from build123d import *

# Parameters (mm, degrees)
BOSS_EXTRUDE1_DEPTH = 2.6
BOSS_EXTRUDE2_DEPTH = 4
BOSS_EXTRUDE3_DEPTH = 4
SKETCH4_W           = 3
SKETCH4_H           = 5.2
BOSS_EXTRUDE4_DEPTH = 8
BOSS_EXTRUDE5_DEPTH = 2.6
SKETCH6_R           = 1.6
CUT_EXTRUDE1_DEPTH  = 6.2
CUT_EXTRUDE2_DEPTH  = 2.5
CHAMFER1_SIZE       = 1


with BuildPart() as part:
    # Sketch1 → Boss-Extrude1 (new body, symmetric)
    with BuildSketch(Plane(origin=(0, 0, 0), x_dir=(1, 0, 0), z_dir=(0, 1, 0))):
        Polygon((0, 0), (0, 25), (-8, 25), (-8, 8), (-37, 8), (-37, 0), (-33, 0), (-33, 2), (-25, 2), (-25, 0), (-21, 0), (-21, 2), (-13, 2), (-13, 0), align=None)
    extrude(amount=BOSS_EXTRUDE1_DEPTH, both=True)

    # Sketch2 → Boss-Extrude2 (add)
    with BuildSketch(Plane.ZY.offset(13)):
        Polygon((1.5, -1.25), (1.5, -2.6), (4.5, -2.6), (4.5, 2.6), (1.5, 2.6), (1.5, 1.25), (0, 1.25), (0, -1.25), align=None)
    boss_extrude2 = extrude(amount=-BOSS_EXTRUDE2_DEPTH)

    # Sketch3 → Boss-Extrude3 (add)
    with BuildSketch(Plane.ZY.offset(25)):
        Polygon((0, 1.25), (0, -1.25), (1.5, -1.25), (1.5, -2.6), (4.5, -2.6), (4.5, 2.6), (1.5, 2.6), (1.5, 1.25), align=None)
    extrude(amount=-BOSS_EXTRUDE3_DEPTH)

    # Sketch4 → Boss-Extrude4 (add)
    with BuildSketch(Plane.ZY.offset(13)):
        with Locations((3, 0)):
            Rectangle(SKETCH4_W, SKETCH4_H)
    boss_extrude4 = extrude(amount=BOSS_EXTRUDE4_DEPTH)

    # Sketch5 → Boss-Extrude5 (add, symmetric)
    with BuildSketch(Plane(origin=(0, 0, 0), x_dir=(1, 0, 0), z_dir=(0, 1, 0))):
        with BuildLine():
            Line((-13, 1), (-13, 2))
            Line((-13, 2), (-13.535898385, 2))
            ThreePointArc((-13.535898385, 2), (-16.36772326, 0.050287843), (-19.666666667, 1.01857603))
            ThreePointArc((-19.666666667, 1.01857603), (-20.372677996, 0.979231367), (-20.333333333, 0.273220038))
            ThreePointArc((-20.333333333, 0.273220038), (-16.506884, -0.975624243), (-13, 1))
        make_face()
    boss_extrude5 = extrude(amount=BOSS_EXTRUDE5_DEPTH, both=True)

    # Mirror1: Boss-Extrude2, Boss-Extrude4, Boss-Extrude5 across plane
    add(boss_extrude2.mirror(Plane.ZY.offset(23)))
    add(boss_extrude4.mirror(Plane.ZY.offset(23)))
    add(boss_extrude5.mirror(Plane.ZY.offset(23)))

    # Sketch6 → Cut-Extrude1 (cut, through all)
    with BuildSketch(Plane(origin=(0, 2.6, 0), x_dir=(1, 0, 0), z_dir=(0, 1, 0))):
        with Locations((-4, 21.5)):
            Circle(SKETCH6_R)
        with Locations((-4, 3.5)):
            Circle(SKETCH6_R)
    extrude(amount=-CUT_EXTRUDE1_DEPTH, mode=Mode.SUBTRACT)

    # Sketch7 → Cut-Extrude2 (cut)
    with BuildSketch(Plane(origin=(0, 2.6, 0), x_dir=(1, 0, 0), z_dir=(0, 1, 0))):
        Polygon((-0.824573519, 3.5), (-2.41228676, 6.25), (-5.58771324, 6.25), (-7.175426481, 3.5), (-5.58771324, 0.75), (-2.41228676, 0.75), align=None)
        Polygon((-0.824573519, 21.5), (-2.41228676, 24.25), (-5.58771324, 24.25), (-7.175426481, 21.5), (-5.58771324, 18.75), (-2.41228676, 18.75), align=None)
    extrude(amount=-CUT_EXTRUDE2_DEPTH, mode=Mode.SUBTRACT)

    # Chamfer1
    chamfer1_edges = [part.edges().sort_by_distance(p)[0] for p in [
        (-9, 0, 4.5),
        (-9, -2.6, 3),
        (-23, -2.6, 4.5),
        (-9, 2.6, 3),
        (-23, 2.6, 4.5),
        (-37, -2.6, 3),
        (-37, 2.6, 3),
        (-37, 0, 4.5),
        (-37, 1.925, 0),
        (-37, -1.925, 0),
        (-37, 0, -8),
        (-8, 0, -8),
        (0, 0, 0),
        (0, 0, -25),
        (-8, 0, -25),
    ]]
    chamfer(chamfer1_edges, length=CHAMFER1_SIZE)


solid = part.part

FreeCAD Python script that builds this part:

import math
import FreeCAD as App
import Part
import Sketcher

V = App.Vector
Q = App.Units.Quantity


def edges_at(feature, points):
    """Names of the edges that pass closest to the given points."""
    edges = feature.Shape.Edges
    near = lambda p: min(range(len(edges)), key=lambda i: edges[i].distToShape(Part.Vertex(*p))[0])
    return sorted({f"Edge{near(p) + 1}" for p in points})

doc = App.newDocument("Part")
body = doc.addObject("PartDesign::Body", "Body")

sketch1 = body.newObject("Sketcher::SketchObject", "Sketch")
sketch1.AttachmentSupport = (doc.getObject("XZ_Plane"), [""])
sketch1.MapMode = "FlatFace"
sketch1.addGeometry([
    Part.LineSegment(V(0, 0, 0), V(0, -25, 0)),
    Part.LineSegment(V(0, -25, 0), V(-8, -25, 0)),
    Part.LineSegment(V(-8, -25, 0), V(-8, -8, 0)),
    Part.LineSegment(V(-8, -8, 0), V(-37, -8, 0)),
    Part.LineSegment(V(-37, -8, 0), V(-37, 0, 0)),
    Part.LineSegment(V(-37, 0, 0), V(-33, 0, 0)),
    Part.LineSegment(V(-33, 0, 0), V(-33, -2, 0)),
    Part.LineSegment(V(-33, -2, 0), V(-25, -2, 0)),
    Part.LineSegment(V(-25, -2, 0), V(-25, 0, 0)),
    Part.LineSegment(V(-25, 0, 0), V(-21, 0, 0)),
    Part.LineSegment(V(-21, 0, 0), V(-21, -2, 0)),
    Part.LineSegment(V(-21, -2, 0), V(-13, -2, 0)),
    Part.LineSegment(V(-13, -2, 0), V(-13, 0, 0)),
    Part.LineSegment(V(-13, 0, 0), V(0, 0, 0)),
], False)
sketch1.addConstraint([
    Sketcher.Constraint("Coincident", 0, 2, 1, 1),
    Sketcher.Constraint("Coincident", 1, 2, 2, 1),
    Sketcher.Constraint("Coincident", 2, 2, 3, 1),
    Sketcher.Constraint("Coincident", 3, 2, 4, 1),
    Sketcher.Constraint("Coincident", 4, 2, 5, 1),
    Sketcher.Constraint("Coincident", 5, 2, 6, 1),
    Sketcher.Constraint("Coincident", 6, 2, 7, 1),
    Sketcher.Constraint("Coincident", 7, 2, 8, 1),
    Sketcher.Constraint("Coincident", 8, 2, 9, 1),
    Sketcher.Constraint("Coincident", 9, 2, 10, 1),
    Sketcher.Constraint("Coincident", 10, 2, 11, 1),
    Sketcher.Constraint("Coincident", 11, 2, 12, 1),
    Sketcher.Constraint("Coincident", 12, 2, 13, 1),
    Sketcher.Constraint("Coincident", 13, 2, 0, 1),
    Sketcher.Constraint("Vertical", 0),
    Sketcher.Constraint("Horizontal", 1),
    Sketcher.Constraint("Vertical", 2),
    Sketcher.Constraint("Horizontal", 3),
    Sketcher.Constraint("Vertical", 4),
    Sketcher.Constraint("Horizontal", 5),
    Sketcher.Constraint("Vertical", 6),
    Sketcher.Constraint("Horizontal", 7),
    Sketcher.Constraint("Vertical", 8),
    Sketcher.Constraint("Horizontal", 9),
    Sketcher.Constraint("Vertical", 10),
    Sketcher.Constraint("Horizontal", 11),
    Sketcher.Constraint("Vertical", 12),
    Sketcher.Constraint("Horizontal", 13),
    Sketcher.Constraint("Coincident", 13, 2, -1, 1),
    Sketcher.Constraint("PointOnObject", 4, 2, -1),
    Sketcher.Constraint("PointOnObject", 8, 2, -1),
    Sketcher.Constraint("Horizontal", 7, 2, 10, 2),
    Sketcher.Constraint("Equal", 1, 7),
    Sketcher.Constraint("Equal", 5, 9),
    Sketcher.Constraint("Equal", 7, 11),
    Sketcher.Constraint("Equal", 11, 4),
    Sketcher.Constraint("DistanceX", 1, 2, 1, 1, Q("8 mm")),
    Sketcher.Constraint("DistanceX", 3, 2, 3, 1, Q("29 mm")),
    Sketcher.Constraint("DistanceX", 5, 1, 5, 2, Q("4 mm")),
    Sketcher.Constraint("DistanceY", 0, 2, 0, 1, Q("25 mm")),
    Sketcher.Constraint("DistanceY", 6, 2, 6, 1, Q("2 mm")),
])
pad1 = body.newObject("PartDesign::Pad", "Pad")
pad1.Profile = sketch1
pad1.Length = 5.2
pad1.Midplane = True

sketch2 = body.newObject("Sketcher::SketchObject", "Sketch001")
sketch2.AttachmentSupport = (doc.getObject("YZ_Plane"), [""])
sketch2.MapMode = "FlatFace"
sketch2.AttachmentOffset = App.Placement(V(0, 0, -13), App.Rotation())
sketch2.addGeometry([
    Part.LineSegment(V(-1.25, 1.5, 0), V(-2.6, 1.5, 0)),
    Part.LineSegment(V(-2.6, 1.5, 0), V(-2.6, 4.5, 0)),
    Part.LineSegment(V(-2.6, 4.5, 0), V(2.6, 4.5, 0)),
    Part.LineSegment(V(2.6, 4.5, 0), V(2.6, 1.5, 0)),
    Part.LineSegment(V(2.6, 1.5, 0), V(1.25, 1.5, 0)),
    Part.LineSegment(V(1.25, 1.5, 0), V(1.25, 0, 0)),
    Part.LineSegment(V(1.25, 0, 0), V(-1.25, 0, 0)),
    Part.LineSegment(V(-1.25, 0, 0), V(-1.25, 1.5, 0)),
], False)
sketch2.addConstraint([
    Sketcher.Constraint("Coincident", 0, 2, 1, 1),
    Sketcher.Constraint("Coincident", 1, 2, 2, 1),
    Sketcher.Constraint("Coincident", 2, 2, 3, 1),
    Sketcher.Constraint("Coincident", 3, 2, 4, 1),
    Sketcher.Constraint("Coincident", 4, 2, 5, 1),
    Sketcher.Constraint("Coincident", 5, 2, 6, 1),
    Sketcher.Constraint("Coincident", 6, 2, 7, 1),
    Sketcher.Constraint("Coincident", 7, 2, 0, 1),
    Sketcher.Constraint("Horizontal", 0),
    Sketcher.Constraint("Vertical", 1),
    Sketcher.Constraint("Horizontal", 2),
    Sketcher.Constraint("Vertical", 3),
    Sketcher.Constraint("Horizontal", 4),
    Sketcher.Constraint("Vertical", 5),
    Sketcher.Constraint("Horizontal", 6),
    Sketcher.Constraint("Vertical", 7),
    Sketcher.Constraint("Symmetric", 5, 2, 6, 2, -1, 1),
    Sketcher.Constraint("Symmetric", 0, 2, 3, 2, -2),
    Sketcher.Constraint("DistanceY", 1, 1, 1, 2, Q("3 mm")),
    Sketcher.Constraint("DistanceX", 2, 1, 2, 2, Q("5.2 mm")),
    Sketcher.Constraint("DistanceX", 6, 2, 6, 1, Q("2.5 mm")),
    Sketcher.Constraint("DistanceY", 5, 2, 5, 1, Q("1.5 mm")),
])
pad2 = body.newObject("PartDesign::Pad", "Pad001")
pad2.Profile = sketch2
pad2.Length = 4

sketch3 = body.newObject("Sketcher::SketchObject", "Sketch002")
sketch3.AttachmentSupport = (doc.getObject("YZ_Plane"), [""])
sketch3.MapMode = "FlatFace"
sketch3.AttachmentOffset = App.Placement(V(0, 0, -25), App.Rotation())
sketch3.addGeometry([
    Part.LineSegment(V(1.25, 0, 0), V(-1.25, 0, 0)),
    Part.LineSegment(V(-1.25, 0, 0), V(-1.25, 1.5, 0)),
    Part.LineSegment(V(-1.25, 1.5, 0), V(-2.6, 1.5, 0)),
    Part.LineSegment(V(-2.6, 1.5, 0), V(-2.6, 4.5, 0)),
    Part.LineSegment(V(-2.6, 4.5, 0), V(2.6, 4.5, 0)),
    Part.LineSegment(V(2.6, 4.5, 0), V(2.6, 1.5, 0)),
    Part.LineSegment(V(2.6, 1.5, 0), V(1.25, 1.5, 0)),
    Part.LineSegment(V(1.25, 1.5, 0), V(1.25, 0, 0)),
], False)
sketch3.addConstraint([
    Sketcher.Constraint("Coincident", 0, 2, 1, 1),
    Sketcher.Constraint("Coincident", 1, 2, 2, 1),
    Sketcher.Constraint("Coincident", 2, 2, 3, 1),
    Sketcher.Constraint("Coincident", 3, 2, 4, 1),
    Sketcher.Constraint("Coincident", 4, 2, 5, 1),
    Sketcher.Constraint("Coincident", 5, 2, 6, 1),
    Sketcher.Constraint("Coincident", 6, 2, 7, 1),
    Sketcher.Constraint("Coincident", 7, 2, 0, 1),
    Sketcher.Constraint("Horizontal", 0),
    Sketcher.Constraint("Vertical", 1),
    Sketcher.Constraint("Horizontal", 2),
    Sketcher.Constraint("Vertical", 3),
    Sketcher.Constraint("Horizontal", 4),
    Sketcher.Constraint("Vertical", 5),
    Sketcher.Constraint("Horizontal", 6),
    Sketcher.Constraint("Vertical", 7),
    Sketcher.Constraint("Symmetric", 0, 2, 7, 2, -1, 1),
    Sketcher.Constraint("Symmetric", 2, 2, 5, 2, -2),
    Sketcher.Constraint("DistanceY", 3, 1, 3, 2, Q("3 mm")),
    Sketcher.Constraint("DistanceX", 0, 2, 0, 1, Q("2.5 mm")),
    Sketcher.Constraint("DistanceX", 4, 1, 4, 2, Q("5.2 mm")),
    Sketcher.Constraint("DistanceY", 1, 1, 1, 2, Q("1.5 mm")),
])
pad3 = body.newObject("PartDesign::Pad", "Pad002")
pad3.Profile = sketch3
pad3.Length = 4

sketch4 = body.newObject("Sketcher::SketchObject", "Sketch003")
sketch4.AttachmentSupport = (doc.getObject("YZ_Plane"), [""])
sketch4.MapMode = "FlatFace"
sketch4.AttachmentOffset = App.Placement(V(0, 0, -13), App.Rotation())
sketch4.addGeometry([
    Part.LineSegment(V(2.6, 1.5, 0), V(-2.6, 1.5, 0)),
    Part.LineSegment(V(-2.6, 1.5, 0), V(-2.6, 4.5, 0)),
    Part.LineSegment(V(-2.6, 4.5, 0), V(2.6, 4.5, 0)),
    Part.LineSegment(V(2.6, 4.5, 0), V(2.6, 1.5, 0)),
], False)
sketch4.addConstraint([
    Sketcher.Constraint("Coincident", 0, 2, 1, 1),
    Sketcher.Constraint("Coincident", 1, 2, 2, 1),
    Sketcher.Constraint("Coincident", 2, 2, 3, 1),
    Sketcher.Constraint("Coincident", 3, 2, 0, 1),
    Sketcher.Constraint("Horizontal", 0),
    Sketcher.Constraint("Vertical", 1),
    Sketcher.Constraint("Horizontal", 2),
    Sketcher.Constraint("Vertical", 3),
    Sketcher.Constraint("DistanceY", 1, 1, 1, 2, Q("3 mm")),
    Sketcher.Constraint("DistanceX", 0, 2, 0, 1, Q("5.2 mm")),
    Sketcher.Constraint("DistanceX", 0, 2, -1, 1, Q("2.6 mm")),
    Sketcher.Constraint("DistanceY", -1, 1, 0, 2, Q("1.5 mm")),
])
pad4 = body.newObject("PartDesign::Pad", "Pad003")
pad4.Profile = sketch4
pad4.Length = 8
pad4.Reversed = True

sketch5 = body.newObject("Sketcher::SketchObject", "Sketch004")
sketch5.AttachmentSupport = (doc.getObject("XZ_Plane"), [""])
sketch5.MapMode = "FlatFace"
sketch5.addGeometry([
    Part.LineSegment(V(-13, -1, 0), V(-13, -2, 0)),
    Part.LineSegment(V(-13, -2, 0), V(-13.535898, -2, 0)),
    Part.ArcOfCircle(Part.Circle(V(-17, -4, 0), V(0, 0, 1), 4), math.radians(30), math.radians(131.810315)),
    Part.ArcOfCircle(Part.Circle(V(-20, -0.645898, 0), V(0, 0, 1), 0.5), math.radians(131.810315), math.radians(311.810315)),
    Part.ArcOfCircle(Part.Circle(V(-17, -4, 0), V(0, 0, 1), 5), math.radians(36.869898), math.radians(131.810315)),
], False)
sketch5.addConstraint([
    Sketcher.Constraint("Coincident", 0, 2, 1, 1),
    Sketcher.Constraint("Coincident", 1, 2, 2, 1),
    Sketcher.Constraint("Tangent", 2, 2, 3, 2),
    Sketcher.Constraint("Tangent", 3, 1, 4, 2),
    Sketcher.Constraint("Coincident", 4, 1, 0, 1),
    Sketcher.Constraint("Vertical", 0),
    Sketcher.Constraint("Horizontal", 1),
    Sketcher.Constraint("Coincident", 4, 3, 2, 3),
    Sketcher.Constraint("Radius", 2, Q("4 mm")),
    Sketcher.Constraint("Radius", 4, Q("5 mm")),
    Sketcher.Constraint("DistanceY", 0, 2, 0, 1, Q("1 mm")),
    Sketcher.Constraint("DistanceX", 2, 3, -1, 1, Q("17 mm")),
    Sketcher.Constraint("DistanceY", 2, 3, -1, 1, Q("4 mm")),
    Sketcher.Constraint("DistanceX", 3, 3, -1, 1, Q("20 mm")),
    Sketcher.Constraint("DistanceX", 0, 2, -1, 1, Q("13 mm")),
])
pad5 = body.newObject("PartDesign::Pad", "Pad004")
pad5.Profile = sketch5
pad5.Length = 5.2
pad5.Midplane = True
doc.recompute()

datumplane = body.newObject("PartDesign::Plane", "DatumPlane")
datumplane.AttachmentSupport = (doc.getObject("YZ_Plane"), [""])
datumplane.MapMode = "FlatFace"
datumplane.AttachmentOffset = App.Placement(V(0, 0, -23), App.Rotation())
mirrored = body.newObject("PartDesign::Mirrored", "Mirrored")
mirrored.Originals = [pad2, pad4, pad5]
mirrored.MirrorPlane = (datumplane, [""])
body.Tip = mirrored

sketch6 = body.newObject("Sketcher::SketchObject", "Sketch005")
sketch6.AttachmentSupport = (doc.getObject("XZ_Plane"), [""])
sketch6.MapMode = "FlatFace"
sketch6.AttachmentOffset = App.Placement(V(0, 0, -2.6), App.Rotation())
sketch6.addGeometry([
    Part.Circle(V(-4, -21.5, 0), V(0, 0, 1), 1.6),
    Part.Circle(V(-4, -3.5, 0), V(0, 0, 1), 1.6),
], False)
sketch6.addConstraint([
    Sketcher.Constraint("Equal", 0, 1),
    Sketcher.Constraint("Vertical", 0, 3, 1, 3),
    Sketcher.Constraint("Diameter", 0, Q("3.2 mm")),
    Sketcher.Constraint("DistanceX", 0, 3, -1, 1, Q("4 mm")),
    Sketcher.Constraint("DistanceY", 0, 3, 1, 3, Q("18 mm")),
    Sketcher.Constraint("DistanceY", 0, 3, -1, 1, Q("21.5 mm")),
])
pocket1 = body.newObject("PartDesign::Pocket", "Pocket")
pocket1.Profile = sketch6
pocket1.Type = "ThroughAll"
pocket1.Reversed = True

sketch7 = body.newObject("Sketcher::SketchObject", "Sketch006")
sketch7.AttachmentSupport = (doc.getObject("XZ_Plane"), [""])
sketch7.MapMode = "FlatFace"
sketch7.AttachmentOffset = App.Placement(V(0, 0, -2.6), App.Rotation())
sketch7.addGeometry([
    Part.LineSegment(V(-0.824574, -3.5, 0), V(-2.412287, -6.25, 0)),
    Part.LineSegment(V(-2.412287, -6.25, 0), V(-5.587713, -6.25, 0)),
    Part.LineSegment(V(-5.587713, -6.25, 0), V(-7.175426, -3.5, 0)),
    Part.LineSegment(V(-7.175426, -3.5, 0), V(-5.587713, -0.75, 0)),
    Part.LineSegment(V(-5.587713, -0.75, 0), V(-2.412287, -0.75, 0)),
    Part.LineSegment(V(-2.412287, -0.75, 0), V(-0.824574, -3.5, 0)),
    Part.LineSegment(V(-0.824574, -21.5, 0), V(-2.412287, -24.25, 0)),
    Part.LineSegment(V(-2.412287, -24.25, 0), V(-5.587713, -24.25, 0)),
    Part.LineSegment(V(-5.587713, -24.25, 0), V(-7.175426, -21.5, 0)),
    Part.LineSegment(V(-7.175426, -21.5, 0), V(-5.587713, -18.75, 0)),
    Part.LineSegment(V(-5.587713, -18.75, 0), V(-2.412287, -18.75, 0)),
    Part.LineSegment(V(-2.412287, -18.75, 0), V(-0.824574, -21.5, 0)),
], False)
sketch7.addConstraint([
    Sketcher.Constraint("Coincident", 0, 2, 1, 1),
    Sketcher.Constraint("Coincident", 1, 2, 2, 1),
    Sketcher.Constraint("Coincident", 2, 2, 3, 1),
    Sketcher.Constraint("Coincident", 3, 2, 4, 1),
    Sketcher.Constraint("Coincident", 4, 2, 5, 1),
    Sketcher.Constraint("Coincident", 5, 2, 0, 1),
    Sketcher.Constraint("Coincident", 6, 2, 7, 1),
    Sketcher.Constraint("Coincident", 7, 2, 8, 1),
    Sketcher.Constraint("Coincident", 8, 2, 9, 1),
    Sketcher.Constraint("Coincident", 9, 2, 10, 1),
    Sketcher.Constraint("Coincident", 10, 2, 11, 1),
    Sketcher.Constraint("Coincident", 11, 2, 6, 1),
    Sketcher.Constraint("Horizontal", 1),
    Sketcher.Constraint("Horizontal", 4),
    Sketcher.Constraint("Horizontal", 7),
    Sketcher.Constraint("Horizontal", 10),
    Sketcher.Constraint("Parallel", 0, 3),
    Sketcher.Constraint("Parallel", 2, 5),
    Sketcher.Constraint("Parallel", 3, 6),
    Sketcher.Constraint("Parallel", 5, 8),
    Sketcher.Constraint("Parallel", 6, 9),
    Sketcher.Constraint("Parallel", 8, 11),
    Sketcher.Constraint("Horizontal", 2, 2, 5, 2),
    Sketcher.Constraint("Horizontal", 8, 2, 11, 2),
    Sketcher.Constraint("Vertical", 1, 2, 3, 2),
    Sketcher.Constraint("Vertical", 0, 2, 4, 2),
    Sketcher.Constraint("Vertical", 4, 2, 6, 2),
    Sketcher.Constraint("Vertical", 3, 2, 7, 2),
    Sketcher.Constraint("Vertical", 2, 2, 8, 2),
    Sketcher.Constraint("Vertical", 7, 2, 9, 2),
    Sketcher.Constraint("Angle", 0, Q("-120 deg")),
    Sketcher.Constraint("DistanceY", 6, 2, 0, 2, Q("18 mm")),
    Sketcher.Constraint("DistanceY", 2, 2, -1, 1, Q("3.5 mm")),
    Sketcher.Constraint("DistanceY", 1, 2, 3, 2, Q("5.5 mm")),
    Sketcher.Constraint("DistanceX", 1, 2, 1, 1, Q("3.175426 mm")),
    Sketcher.Constraint("DistanceX", 0, 2, -1, 1, Q("2.412287 mm")),
])
pocket2 = body.newObject("PartDesign::Pocket", "Pocket001")
pocket2.Profile = sketch7
pocket2.Length = 2.5
pocket2.Reversed = True
doc.recompute()

chamfer = body.newObject("PartDesign::Chamfer", "Chamfer")
chamfer.Base = (pocket2, edges_at(pocket2, [
    (-9, 0, 4.5),
    (-9, -2.6, 3),
    (-23, -2.6, 4.5),
    (-9, 2.6, 3),
    (-23, 2.6, 4.5),
    (-37, -2.6, 3),
    (-37, 2.6, 3),
    (-37, 0, 4.5),
    (-37, 1.925, 0),
    (-37, -1.925, 0),
    (-37, 0, -8),
    (-8, 0, -8),
    (0, 0, 0),
    (0, 0, -25),
    (-8, 0, -25),
]))
chamfer.Size = 1

doc.recompute()
